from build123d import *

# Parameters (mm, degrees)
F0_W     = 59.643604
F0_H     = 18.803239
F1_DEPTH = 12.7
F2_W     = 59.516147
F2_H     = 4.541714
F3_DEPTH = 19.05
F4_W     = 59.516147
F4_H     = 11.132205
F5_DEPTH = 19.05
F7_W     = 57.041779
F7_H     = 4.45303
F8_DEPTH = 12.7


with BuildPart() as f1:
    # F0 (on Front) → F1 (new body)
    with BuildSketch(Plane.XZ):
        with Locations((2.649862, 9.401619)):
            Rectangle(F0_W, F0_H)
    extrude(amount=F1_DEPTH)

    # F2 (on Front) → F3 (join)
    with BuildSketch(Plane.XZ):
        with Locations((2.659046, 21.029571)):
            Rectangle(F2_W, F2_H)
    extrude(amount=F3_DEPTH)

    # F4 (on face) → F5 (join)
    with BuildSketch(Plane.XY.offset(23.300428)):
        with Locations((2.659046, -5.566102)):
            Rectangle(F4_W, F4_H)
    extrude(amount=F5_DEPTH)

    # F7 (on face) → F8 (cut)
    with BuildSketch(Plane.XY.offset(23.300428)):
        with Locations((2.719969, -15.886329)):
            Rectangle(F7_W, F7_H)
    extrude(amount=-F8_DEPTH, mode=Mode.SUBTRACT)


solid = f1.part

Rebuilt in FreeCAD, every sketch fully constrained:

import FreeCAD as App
import Part
import Sketcher
Q = App.Units.Quantity

doc = App.newDocument("Part")
body = doc.addObject("PartDesign::Body", "Body")

sketch1 = body.newObject("Sketcher::SketchObject", "Sketch")
sketch1.AttachmentSupport = (doc.getObject("XZ_Plane"), [""])
sketch1.MapMode = "FlatFace"
sketch1.addGeometry([
    Part.LineSegment(App.Vector(-27.17194, 18.803238, 0), App.Vector(-27.17194, 0, 0)),
    Part.LineSegment(App.Vector(-27.17194, 0, 0), App.Vector(32.471664, 0, 0)),
    Part.LineSegment(App.Vector(32.471664, 0, 0), App.Vector(32.471664, 18.803238, 0)),
    Part.LineSegment(App.Vector(32.471664, 18.803238, 0), App.Vector(-27.17194, 18.803238, 0)),
], False)
sketch1.addConstraint([
    Sketcher.Constraint("Coincident", 0, 2, 1, 1),
    Sketcher.Constraint("Coincident", 1, 2, 2, 1),
    Sketcher.Constraint("Coincident", 2, 2, 3, 1),
    Sketcher.Constraint("Coincident", 3, 2, 0, 1),
    Sketcher.Constraint("Vertical", 0),
    Sketcher.Constraint("Horizontal", 1),
    Sketcher.Constraint("Vertical", 2),
    Sketcher.Constraint("Horizontal", 3),
    Sketcher.Constraint("PointOnObject", 0, 2, -1),
    Sketcher.Constraint("DistanceY", 0, 2, 0, 1, 18.803239),
    Sketcher.Constraint("DistanceX", 1, 1, 1, 2, 59.643604),
    Sketcher.Constraint("DistanceX", 0, 2, -1, 1, 27.17194),
])
pad1 = body.newObject("PartDesign::Pad", "Pad")
pad1.Profile = sketch1
pad1.Length = Q("0.5 in")

sketch2 = body.newObject("Sketcher::SketchObject", "Sketch001")
sketch2.AttachmentSupport = (doc.getObject("XZ_Plane"), [""])
sketch2.MapMode = "FlatFace"
sketch2.addGeometry([
    Part.LineSegment(App.Vector(-27.099027, 23.300428, 0), App.Vector(-27.099027, 18.758714, 0)),
    Part.LineSegment(App.Vector(-27.099027, 18.758714, 0), App.Vector(32.417119, 18.758714, 0)),
    Part.LineSegment(App.Vector(32.417119, 18.758714, 0), App.Vector(32.417119, 23.300428, 0)),
    Part.LineSegment(App.Vector(32.417119, 23.300428, 0), App.Vector(-27.099027, 23.300428, 0)),
], False)
sketch2.addConstraint([
    Sketcher.Constraint("Coincident", 0, 2, 1, 1),
    Sketcher.Constraint("Coincident", 1, 2, 2, 1),
    Sketcher.Constraint("Coincident", 2, 2, 3, 1),
    Sketcher.Constraint("Coincident", 3, 2, 0, 1),
    Sketcher.Constraint("Vertical", 0),
    Sketcher.Constraint("Horizontal", 1),
    Sketcher.Constraint("Vertical", 2),
    Sketcher.Constraint("Horizontal", 3),
    Sketcher.Constraint("DistanceX", 1, 1, 1, 2, 59.516147),
    Sketcher.Constraint("DistanceY", 0, 2, 0, 1, 4.541714),
    Sketcher.Constraint("DistanceX", -1, 1, 1, 2, 32.417119),
    Sketcher.Constraint("DistanceY", -1, 1, 2, 2, 23.300428),
])
pad2 = body.newObject("PartDesign::Pad", "Pad001")
pad2.Profile = sketch2
pad2.Length = Q("0.75 in")

sketch3 = body.newObject("Sketcher::SketchObject", "Sketch002")
sketch3.AttachmentSupport = (doc.getObject("XY_Plane"), [""])
sketch3.MapMode = "FlatFace"
sketch3.AttachmentOffset = App.Placement(App.Vector(0, 0, 23.300428), App.Rotation())
sketch3.addGeometry([
    Part.LineSegment(App.Vector(-27.099027, 0, 0), App.Vector(-27.099027, -11.132205, 0)),
    Part.LineSegment(App.Vector(-27.099027, -11.132205, 0), App.Vector(32.417119, -11.132205, 0)),
    Part.LineSegment(App.Vector(32.417119, -11.132205, 0), App.Vector(32.417119, 0, 0)),
    Part.LineSegment(App.Vector(32.417119, 0, 0), App.Vector(-27.099027, 0, 0)),
], False)
sketch3.addConstraint([
    Sketcher.Constraint("Coincident", 0, 2, 1, 1),
    Sketcher.Constraint("Coincident", 1, 2, 2, 1),
    Sketcher.Constraint("Coincident", 2, 2, 3, 1),
    Sketcher.Constraint("Coincident", 3, 2, 0, 1),
    Sketcher.Constraint("Vertical", 0),
    Sketcher.Constraint("Horizontal", 1),
    Sketcher.Constraint("Vertical", 2),
    Sketcher.Constraint("Horizontal", 3),
    Sketcher.Constraint("PointOnObject", 2, 2, -1),
    Sketcher.Constraint("DistanceX", 1, 1, 1, 2, 59.516147),
    Sketcher.Constraint("DistanceY", 0, 2, 0, 1, 11.132205),
    Sketcher.Constraint("DistanceX", -1, 1, 1, 2, 32.417119),
])
pad3 = body.newObject("PartDesign::Pad", "Pad002")
pad3.Profile = sketch3
pad3.Length = Q("0.75 in")

sketch4 = body.newObject("Sketcher::SketchObject", "Sketch003")
sketch4.AttachmentSupport = (doc.getObject("XY_Plane"), [""])
sketch4.MapMode = "FlatFace"
sketch4.AttachmentOffset = App.Placement(App.Vector(0, 0, 23.300428), App.Rotation())
sketch4.addGeometry([
    Part.LineSegment(App.Vector(-25.800921, -13.659814, 0), App.Vector(-25.800921, -18.112844, 0)),
    Part.LineSegment(App.Vector(-25.800921, -18.112844, 0), App.Vector(31.240859, -18.112844, 0)),
    Part.LineSegment(App.Vector(31.240859, -18.112844, 0), App.Vector(31.240859, -13.659814, 0)),
    Part.LineSegment(App.Vector(31.240859, -13.659814, 0), App.Vector(-25.800921, -13.659814, 0)),
], False)
sketch4.addConstraint([
    Sketcher.Constraint("Coincident", 0, 2, 1, 1),
    Sketcher.Constraint("Coincident", 1, 2, 2, 1),
    Sketcher.Constraint("Coincident", 2, 2, 3, 1),
    Sketcher.Constraint("Coincident", 3, 2, 0, 1),
    Sketcher.Constraint("Vertical", 0),
    Sketcher.Constraint("Horizontal", 1),
    Sketcher.Constraint("Vertical", 2),
    Sketcher.Constraint("Horizontal", 3),
    Sketcher.Constraint("DistanceX", 1, 1, 1, 2, 57.041779),
    Sketcher.Constraint("DistanceY", 0, 2, 0, 1, 4.45303),
    Sketcher.Constraint("DistanceX", 0, 2, -1, 1, 25.800921),
    Sketcher.Constraint("DistanceY", 0, 2, -1, 1, 18.112844),
])
pocket1 = body.newObject("PartDesign::Pocket", "Pocket")
pocket1.Profile = sketch4
pocket1.Length = Q("0.5 in")

doc.recompute()
